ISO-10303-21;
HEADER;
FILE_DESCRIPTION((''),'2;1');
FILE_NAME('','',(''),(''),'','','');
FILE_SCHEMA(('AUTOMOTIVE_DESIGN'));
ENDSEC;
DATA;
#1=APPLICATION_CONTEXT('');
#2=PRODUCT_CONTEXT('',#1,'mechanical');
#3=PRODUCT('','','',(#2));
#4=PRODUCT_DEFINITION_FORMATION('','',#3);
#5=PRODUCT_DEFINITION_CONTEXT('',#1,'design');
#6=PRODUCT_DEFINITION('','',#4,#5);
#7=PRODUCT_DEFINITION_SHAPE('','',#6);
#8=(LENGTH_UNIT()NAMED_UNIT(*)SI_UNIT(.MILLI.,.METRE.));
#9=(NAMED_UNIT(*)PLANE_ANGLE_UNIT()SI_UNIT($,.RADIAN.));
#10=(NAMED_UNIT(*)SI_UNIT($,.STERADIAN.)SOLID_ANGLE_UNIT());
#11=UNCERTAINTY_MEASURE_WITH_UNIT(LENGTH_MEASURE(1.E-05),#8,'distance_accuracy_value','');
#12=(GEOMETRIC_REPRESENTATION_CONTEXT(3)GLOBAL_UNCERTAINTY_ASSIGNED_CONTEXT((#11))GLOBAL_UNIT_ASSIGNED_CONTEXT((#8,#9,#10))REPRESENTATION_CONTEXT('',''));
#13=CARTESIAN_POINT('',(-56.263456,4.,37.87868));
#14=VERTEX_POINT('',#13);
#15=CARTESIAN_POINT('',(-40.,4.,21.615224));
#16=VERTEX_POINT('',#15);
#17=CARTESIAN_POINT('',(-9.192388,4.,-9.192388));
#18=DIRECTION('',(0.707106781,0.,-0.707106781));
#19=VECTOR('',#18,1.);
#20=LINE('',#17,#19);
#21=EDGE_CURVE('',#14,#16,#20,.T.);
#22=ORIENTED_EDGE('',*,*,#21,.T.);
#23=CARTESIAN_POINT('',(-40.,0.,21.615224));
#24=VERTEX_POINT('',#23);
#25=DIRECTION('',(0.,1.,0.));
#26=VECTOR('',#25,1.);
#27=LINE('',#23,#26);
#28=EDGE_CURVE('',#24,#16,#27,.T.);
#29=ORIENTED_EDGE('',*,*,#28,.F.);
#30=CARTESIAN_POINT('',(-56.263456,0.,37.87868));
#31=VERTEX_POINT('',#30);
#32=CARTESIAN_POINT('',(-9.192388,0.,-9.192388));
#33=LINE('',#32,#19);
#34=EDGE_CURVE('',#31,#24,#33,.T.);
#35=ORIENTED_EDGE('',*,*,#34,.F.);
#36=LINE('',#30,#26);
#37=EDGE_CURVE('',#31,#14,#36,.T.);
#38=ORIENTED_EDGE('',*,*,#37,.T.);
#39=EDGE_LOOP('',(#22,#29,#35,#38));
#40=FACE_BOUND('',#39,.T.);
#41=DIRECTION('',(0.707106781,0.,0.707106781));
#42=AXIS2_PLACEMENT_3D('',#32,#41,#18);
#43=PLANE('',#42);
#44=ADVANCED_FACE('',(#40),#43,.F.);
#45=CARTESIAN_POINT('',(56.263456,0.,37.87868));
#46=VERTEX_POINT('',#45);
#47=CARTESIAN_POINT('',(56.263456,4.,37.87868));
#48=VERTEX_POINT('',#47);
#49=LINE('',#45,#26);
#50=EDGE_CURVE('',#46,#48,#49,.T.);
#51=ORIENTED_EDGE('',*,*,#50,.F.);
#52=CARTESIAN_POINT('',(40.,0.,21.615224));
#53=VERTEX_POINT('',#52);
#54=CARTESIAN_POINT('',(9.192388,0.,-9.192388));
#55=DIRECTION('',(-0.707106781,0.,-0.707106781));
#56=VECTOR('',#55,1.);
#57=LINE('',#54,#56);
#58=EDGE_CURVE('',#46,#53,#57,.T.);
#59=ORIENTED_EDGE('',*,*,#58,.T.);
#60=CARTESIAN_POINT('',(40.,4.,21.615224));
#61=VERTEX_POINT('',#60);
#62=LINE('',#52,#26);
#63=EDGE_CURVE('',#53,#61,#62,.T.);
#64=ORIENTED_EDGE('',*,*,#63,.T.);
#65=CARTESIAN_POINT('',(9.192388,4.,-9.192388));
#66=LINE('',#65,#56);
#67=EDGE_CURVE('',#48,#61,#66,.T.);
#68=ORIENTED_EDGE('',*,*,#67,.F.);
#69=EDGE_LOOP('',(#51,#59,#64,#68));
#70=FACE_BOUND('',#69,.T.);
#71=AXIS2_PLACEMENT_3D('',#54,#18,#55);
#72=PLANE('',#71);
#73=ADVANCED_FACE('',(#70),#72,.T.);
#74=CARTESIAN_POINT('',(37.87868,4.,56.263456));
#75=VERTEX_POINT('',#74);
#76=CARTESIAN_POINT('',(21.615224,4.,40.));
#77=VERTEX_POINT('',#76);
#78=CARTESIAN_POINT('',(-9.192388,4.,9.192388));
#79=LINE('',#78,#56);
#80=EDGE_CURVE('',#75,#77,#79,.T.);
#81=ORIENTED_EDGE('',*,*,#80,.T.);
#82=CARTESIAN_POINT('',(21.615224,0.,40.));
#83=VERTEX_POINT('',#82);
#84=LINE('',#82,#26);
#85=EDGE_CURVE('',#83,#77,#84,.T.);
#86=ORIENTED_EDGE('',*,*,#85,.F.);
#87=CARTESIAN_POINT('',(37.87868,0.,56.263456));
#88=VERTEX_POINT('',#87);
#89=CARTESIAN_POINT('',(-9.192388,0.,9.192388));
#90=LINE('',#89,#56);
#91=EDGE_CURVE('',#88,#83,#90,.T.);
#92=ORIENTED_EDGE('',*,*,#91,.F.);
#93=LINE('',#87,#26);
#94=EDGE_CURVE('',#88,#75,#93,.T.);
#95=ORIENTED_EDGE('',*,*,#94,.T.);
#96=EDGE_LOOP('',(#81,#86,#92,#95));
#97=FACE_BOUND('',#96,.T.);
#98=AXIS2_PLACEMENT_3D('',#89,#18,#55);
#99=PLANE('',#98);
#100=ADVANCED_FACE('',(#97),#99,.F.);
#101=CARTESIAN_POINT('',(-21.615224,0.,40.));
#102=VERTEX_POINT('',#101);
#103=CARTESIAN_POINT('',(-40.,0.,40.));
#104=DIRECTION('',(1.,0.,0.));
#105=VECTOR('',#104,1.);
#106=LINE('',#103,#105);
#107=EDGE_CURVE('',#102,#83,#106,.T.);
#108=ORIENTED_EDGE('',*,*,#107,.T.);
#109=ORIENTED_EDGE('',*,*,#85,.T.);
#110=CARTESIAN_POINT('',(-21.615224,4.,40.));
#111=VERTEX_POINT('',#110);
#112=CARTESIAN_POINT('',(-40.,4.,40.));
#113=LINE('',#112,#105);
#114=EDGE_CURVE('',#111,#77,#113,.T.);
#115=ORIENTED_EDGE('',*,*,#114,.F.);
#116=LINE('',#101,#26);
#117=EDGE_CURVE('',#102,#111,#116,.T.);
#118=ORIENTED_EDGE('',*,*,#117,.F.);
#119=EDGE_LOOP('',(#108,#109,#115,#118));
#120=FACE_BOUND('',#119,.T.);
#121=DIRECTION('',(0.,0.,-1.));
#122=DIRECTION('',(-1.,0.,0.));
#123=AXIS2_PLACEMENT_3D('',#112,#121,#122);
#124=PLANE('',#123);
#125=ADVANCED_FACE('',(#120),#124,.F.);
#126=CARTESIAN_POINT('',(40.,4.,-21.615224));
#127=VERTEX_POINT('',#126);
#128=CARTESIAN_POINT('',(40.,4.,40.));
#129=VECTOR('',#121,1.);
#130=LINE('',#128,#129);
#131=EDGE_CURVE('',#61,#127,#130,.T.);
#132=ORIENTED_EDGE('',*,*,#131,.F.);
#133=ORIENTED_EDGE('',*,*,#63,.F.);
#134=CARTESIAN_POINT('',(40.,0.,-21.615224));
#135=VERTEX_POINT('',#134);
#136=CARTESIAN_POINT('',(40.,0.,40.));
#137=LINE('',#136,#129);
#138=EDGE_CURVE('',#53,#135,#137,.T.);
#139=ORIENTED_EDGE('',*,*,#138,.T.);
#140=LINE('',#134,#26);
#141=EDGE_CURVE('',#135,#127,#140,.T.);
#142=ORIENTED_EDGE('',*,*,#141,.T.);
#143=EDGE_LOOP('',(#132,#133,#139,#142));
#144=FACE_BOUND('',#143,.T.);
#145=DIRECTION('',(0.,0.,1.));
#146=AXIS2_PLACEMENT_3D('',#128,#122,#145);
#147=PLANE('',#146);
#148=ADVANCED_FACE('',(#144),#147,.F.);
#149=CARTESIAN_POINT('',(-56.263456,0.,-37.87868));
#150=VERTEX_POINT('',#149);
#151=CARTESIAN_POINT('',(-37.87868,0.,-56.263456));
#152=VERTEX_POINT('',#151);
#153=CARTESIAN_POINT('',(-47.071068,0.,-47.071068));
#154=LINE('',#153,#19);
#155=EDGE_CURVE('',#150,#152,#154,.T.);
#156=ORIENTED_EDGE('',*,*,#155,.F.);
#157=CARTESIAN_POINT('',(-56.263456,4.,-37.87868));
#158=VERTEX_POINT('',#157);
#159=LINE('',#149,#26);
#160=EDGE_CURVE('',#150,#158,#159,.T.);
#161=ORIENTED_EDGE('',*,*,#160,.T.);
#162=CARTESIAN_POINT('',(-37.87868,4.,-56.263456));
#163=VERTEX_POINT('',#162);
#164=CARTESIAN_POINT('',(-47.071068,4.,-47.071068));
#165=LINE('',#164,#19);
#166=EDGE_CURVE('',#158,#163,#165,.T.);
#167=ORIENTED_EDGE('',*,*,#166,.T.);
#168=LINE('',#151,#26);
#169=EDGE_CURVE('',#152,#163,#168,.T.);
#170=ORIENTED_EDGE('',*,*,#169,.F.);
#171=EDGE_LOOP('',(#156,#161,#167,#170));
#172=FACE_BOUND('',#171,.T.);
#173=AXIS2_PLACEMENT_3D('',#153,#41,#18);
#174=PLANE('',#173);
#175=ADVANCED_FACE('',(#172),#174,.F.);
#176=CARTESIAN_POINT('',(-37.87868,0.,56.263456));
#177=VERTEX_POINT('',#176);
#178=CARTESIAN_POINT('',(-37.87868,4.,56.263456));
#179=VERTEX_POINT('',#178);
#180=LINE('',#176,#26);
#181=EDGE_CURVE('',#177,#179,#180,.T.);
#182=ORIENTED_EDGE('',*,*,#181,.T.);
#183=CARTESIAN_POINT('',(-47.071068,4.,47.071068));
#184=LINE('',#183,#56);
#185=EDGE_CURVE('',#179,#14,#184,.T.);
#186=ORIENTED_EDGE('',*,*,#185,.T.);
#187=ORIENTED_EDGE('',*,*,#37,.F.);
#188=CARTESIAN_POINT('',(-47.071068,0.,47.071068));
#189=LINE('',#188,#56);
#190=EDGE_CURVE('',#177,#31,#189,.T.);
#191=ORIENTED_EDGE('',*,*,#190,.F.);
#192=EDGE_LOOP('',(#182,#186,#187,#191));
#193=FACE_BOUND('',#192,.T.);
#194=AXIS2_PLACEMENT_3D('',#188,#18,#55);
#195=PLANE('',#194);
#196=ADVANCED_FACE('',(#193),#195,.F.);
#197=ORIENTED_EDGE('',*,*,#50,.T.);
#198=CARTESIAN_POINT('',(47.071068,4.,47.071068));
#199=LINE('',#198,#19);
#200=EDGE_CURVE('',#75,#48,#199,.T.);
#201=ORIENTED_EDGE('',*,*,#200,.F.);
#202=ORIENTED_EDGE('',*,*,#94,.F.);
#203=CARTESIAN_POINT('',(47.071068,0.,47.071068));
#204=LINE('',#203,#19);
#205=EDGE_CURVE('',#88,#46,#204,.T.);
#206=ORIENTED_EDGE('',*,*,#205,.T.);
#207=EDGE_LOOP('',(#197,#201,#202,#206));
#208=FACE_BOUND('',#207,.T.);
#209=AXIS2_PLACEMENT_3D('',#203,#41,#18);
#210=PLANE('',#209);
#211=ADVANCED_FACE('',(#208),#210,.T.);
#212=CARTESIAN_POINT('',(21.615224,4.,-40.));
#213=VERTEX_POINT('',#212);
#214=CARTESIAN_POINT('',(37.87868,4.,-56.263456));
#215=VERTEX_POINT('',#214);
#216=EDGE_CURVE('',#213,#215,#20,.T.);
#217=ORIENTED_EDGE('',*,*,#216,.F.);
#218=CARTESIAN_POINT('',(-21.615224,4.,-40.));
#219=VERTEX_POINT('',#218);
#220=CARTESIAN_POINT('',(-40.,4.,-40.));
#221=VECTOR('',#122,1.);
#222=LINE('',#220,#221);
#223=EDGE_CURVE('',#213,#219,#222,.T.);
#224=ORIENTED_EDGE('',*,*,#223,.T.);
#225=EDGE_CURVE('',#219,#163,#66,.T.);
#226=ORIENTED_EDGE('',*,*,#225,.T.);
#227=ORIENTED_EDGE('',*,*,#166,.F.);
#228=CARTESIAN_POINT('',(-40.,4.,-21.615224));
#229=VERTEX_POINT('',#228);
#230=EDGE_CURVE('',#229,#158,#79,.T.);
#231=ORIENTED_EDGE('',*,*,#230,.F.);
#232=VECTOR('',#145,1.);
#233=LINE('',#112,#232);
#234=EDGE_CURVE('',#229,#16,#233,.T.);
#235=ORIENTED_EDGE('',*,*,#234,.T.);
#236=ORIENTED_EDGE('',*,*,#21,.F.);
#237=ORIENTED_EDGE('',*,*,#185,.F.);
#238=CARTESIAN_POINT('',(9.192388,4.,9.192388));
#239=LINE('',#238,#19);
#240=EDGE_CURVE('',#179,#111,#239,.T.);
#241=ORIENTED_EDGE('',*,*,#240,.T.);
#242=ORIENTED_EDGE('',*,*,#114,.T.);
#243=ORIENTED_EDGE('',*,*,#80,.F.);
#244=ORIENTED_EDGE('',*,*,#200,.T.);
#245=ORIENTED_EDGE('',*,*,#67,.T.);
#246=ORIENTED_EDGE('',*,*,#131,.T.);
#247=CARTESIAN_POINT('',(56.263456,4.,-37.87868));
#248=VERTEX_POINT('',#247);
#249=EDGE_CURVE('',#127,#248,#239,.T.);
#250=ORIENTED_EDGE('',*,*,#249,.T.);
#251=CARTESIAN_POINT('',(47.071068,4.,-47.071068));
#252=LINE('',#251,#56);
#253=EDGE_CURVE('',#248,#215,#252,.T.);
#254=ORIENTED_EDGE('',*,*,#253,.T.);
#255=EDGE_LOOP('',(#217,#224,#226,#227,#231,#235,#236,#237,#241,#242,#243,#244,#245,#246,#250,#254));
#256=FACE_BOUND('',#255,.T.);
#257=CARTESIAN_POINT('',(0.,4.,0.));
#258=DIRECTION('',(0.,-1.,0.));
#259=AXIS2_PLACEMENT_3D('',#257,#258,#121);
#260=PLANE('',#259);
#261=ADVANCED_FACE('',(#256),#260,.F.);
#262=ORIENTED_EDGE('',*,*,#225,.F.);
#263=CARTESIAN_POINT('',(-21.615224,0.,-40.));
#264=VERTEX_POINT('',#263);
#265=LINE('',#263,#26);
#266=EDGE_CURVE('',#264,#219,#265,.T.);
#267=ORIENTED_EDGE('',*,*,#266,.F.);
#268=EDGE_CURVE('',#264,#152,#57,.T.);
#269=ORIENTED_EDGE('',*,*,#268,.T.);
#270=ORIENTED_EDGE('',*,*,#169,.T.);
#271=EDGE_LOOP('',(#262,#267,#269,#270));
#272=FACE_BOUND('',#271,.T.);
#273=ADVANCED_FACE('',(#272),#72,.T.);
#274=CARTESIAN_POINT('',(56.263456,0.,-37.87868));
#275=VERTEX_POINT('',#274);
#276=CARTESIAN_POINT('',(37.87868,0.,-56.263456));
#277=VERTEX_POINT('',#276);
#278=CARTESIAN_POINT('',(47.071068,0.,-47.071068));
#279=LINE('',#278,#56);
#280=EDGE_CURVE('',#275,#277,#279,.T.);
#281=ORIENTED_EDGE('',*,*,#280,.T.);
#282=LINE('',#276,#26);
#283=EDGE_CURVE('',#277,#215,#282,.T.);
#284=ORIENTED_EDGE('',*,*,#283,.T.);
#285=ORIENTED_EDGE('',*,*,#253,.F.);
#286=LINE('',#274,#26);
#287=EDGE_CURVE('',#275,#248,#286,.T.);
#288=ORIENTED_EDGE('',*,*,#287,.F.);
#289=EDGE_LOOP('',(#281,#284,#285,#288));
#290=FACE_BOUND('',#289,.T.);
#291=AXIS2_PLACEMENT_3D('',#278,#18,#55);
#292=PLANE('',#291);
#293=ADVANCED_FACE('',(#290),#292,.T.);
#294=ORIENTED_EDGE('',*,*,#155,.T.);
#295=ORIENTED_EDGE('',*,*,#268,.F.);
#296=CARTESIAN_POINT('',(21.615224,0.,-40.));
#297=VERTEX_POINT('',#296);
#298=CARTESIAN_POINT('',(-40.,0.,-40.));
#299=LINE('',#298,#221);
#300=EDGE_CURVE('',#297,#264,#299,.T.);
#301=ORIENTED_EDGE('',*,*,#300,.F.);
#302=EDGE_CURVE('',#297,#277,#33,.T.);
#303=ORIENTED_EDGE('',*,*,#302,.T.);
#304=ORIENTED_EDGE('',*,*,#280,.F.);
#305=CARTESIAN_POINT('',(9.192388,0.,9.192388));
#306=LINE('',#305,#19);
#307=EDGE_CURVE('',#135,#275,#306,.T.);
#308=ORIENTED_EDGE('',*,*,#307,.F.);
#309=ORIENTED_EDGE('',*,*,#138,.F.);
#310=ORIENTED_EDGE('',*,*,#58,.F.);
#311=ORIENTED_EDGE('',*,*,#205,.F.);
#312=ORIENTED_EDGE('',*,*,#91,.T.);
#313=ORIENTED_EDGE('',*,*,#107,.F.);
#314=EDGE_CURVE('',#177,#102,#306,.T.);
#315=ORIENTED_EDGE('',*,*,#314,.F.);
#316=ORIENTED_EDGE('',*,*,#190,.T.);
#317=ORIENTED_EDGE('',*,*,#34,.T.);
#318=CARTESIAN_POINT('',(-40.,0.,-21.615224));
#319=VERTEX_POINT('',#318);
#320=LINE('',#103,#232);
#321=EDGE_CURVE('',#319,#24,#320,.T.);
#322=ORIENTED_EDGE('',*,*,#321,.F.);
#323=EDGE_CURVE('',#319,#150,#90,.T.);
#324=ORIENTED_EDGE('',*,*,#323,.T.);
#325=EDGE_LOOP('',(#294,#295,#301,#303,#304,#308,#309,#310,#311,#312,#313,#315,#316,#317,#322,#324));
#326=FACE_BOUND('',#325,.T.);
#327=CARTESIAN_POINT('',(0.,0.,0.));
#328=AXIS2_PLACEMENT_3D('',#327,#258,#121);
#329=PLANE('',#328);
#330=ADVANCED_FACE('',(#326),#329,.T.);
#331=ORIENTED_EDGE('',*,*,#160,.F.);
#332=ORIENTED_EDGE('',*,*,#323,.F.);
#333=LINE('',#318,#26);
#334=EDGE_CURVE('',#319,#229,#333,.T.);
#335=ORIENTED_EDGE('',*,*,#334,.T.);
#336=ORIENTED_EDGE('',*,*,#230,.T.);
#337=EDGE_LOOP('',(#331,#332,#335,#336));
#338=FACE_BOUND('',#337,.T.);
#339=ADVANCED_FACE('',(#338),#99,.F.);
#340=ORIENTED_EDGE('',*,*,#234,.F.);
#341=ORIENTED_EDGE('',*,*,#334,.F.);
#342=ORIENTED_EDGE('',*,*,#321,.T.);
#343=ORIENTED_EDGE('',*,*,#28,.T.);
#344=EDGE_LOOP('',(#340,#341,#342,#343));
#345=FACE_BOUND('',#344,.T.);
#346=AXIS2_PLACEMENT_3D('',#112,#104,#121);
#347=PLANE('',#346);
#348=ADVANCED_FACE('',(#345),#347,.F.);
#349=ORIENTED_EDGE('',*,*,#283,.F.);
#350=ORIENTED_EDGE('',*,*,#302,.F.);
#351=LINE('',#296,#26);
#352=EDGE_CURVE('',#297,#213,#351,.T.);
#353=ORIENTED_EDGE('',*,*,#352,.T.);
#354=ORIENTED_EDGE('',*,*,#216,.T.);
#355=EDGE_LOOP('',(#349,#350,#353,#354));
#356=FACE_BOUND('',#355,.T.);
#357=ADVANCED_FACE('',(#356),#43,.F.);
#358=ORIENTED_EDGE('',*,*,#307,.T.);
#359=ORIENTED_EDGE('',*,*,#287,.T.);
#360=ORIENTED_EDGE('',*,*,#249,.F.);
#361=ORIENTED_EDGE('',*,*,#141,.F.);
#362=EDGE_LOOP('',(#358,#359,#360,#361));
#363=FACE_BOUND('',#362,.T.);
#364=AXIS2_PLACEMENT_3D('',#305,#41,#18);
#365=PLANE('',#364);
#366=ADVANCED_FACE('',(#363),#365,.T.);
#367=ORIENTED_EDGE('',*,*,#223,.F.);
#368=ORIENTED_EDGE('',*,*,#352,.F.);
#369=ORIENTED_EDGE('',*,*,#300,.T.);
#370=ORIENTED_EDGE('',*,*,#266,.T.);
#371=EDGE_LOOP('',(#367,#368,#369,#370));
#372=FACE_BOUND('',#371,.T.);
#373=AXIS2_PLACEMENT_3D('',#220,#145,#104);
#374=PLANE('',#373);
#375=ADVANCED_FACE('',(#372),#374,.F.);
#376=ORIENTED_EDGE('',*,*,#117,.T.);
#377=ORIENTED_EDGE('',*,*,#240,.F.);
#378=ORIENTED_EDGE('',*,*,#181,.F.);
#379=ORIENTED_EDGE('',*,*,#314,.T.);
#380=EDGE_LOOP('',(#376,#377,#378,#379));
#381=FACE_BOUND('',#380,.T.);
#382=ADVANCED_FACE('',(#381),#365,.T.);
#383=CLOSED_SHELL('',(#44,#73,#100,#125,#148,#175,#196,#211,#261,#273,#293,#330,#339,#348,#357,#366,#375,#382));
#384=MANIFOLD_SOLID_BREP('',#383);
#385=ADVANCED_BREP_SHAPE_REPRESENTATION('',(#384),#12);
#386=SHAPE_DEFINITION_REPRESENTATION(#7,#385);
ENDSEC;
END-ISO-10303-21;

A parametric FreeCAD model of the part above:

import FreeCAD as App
import Part
import Sketcher


def add_polygon(sketch, points):
    """Adds a closed chain of lines whose ends are joined by coincident constraints."""
    first, n = sketch.GeometryCount, len(points)
    for a, b in zip(points, points[1:] + points[:1]):
        sketch.addGeometry(Part.LineSegment(App.Vector(*a, 0), App.Vector(*b, 0)), False)
    for i in range(n):
        sketch.addConstraint(Sketcher.Constraint("Coincident", first + i, 2, first + (i + 1) % n, 1))

doc = App.newDocument("Part")
body = doc.addObject("PartDesign::Body", "Body")

# Sketch on XZ plane
sketch1 = body.newObject("Sketcher::SketchObject", "Sketch")
sketch1.AttachmentSupport = (doc.getObject("XZ_Plane"), [""])
sketch1.MapMode = "FlatFace"
add_polygon(sketch1, [(-40, -40), (-40, 40), (40, 40), (40, -40)])  # lines 0-3
sketch1.addConstraint([
    Sketcher.Constraint("Vertical", 0),
    Sketcher.Constraint("Horizontal", 1),
    Sketcher.Constraint("Vertical", 2),
    Sketcher.Constraint("Horizontal", 3),
    Sketcher.Constraint("Symmetric", 0, 2, 2, 2, -1, 1),
    Sketcher.Constraint("Equal", 3, 0),
    Sketcher.Constraint("DistanceX", 1, 1, 1, 2, 80.0),
])
pad1 = body.newObject("PartDesign::Pad", "Pad")
pad1.Profile = sketch1
pad1.Length = 4
pad1.Reversed = True

# Sketch on XZ plane
sketch2 = body.newObject("Sketcher::SketchObject", "Sketch001")
sketch2.AttachmentSupport = (doc.getObject("XZ_Plane"), [""])
sketch2.MapMode = "FlatFace"
sketch2.AttachmentOffset = App.Placement(App.Vector(0, 0, -4), App.Rotation())
add_polygon(sketch2, [(-56.263456, -37.87868), (-40, -21.615224), (-40, -40), (-21.615224, -40), (-37.87868, -56.263456)])  # lines 0-4
add_polygon(sketch2, [(-37.87868, 56.263456), (-21.615224, 40), (-40, 40), (-40, 21.615224), (-56.263456, 37.87868)])  # lines 5-9
add_polygon(sketch2, [(40, -40), (40, -21.615224), (56.263456, -37.87868), (37.87868, -56.263456), (21.615224, -40)])  # lines 10-14
add_polygon(sketch2, [(21.615224, 40), (37.87868, 56.263456), (56.263456, 37.87868), (40, 21.615224), (40, 40)])  # lines 15-19
sketch2.addConstraint([
    Sketcher.Constraint("Vertical", 1),
    Sketcher.Constraint("Horizontal", 2),
    Sketcher.Constraint("Horizontal", 6),
    Sketcher.Constraint("Vertical", 7),
    Sketcher.Constraint("Vertical", 10),
    Sketcher.Constraint("Horizontal", 14),
    Sketcher.Constraint("Vertical", 18),
    Sketcher.Constraint("Horizontal", 19),
    Sketcher.Constraint("Symmetric", 7, 2, 10, 2, -1, 1),
    Sketcher.Constraint("Symmetric", 8, 2, 11, 2, -1, 1),
    Sketcher.Constraint("Symmetric", 9, 2, 12, 2, -1, 1),
    Sketcher.Constraint("Symmetric", 5, 2, 13, 2, -1, 1),
    Sketcher.Constraint("Symmetric", 3, 2, 15, 2, -1, 1),
    Sketcher.Constraint("Symmetric", 4, 2, 16, 2, -1, 1),
    Sketcher.Constraint("Symmetric", 0, 2, 17, 2, -1, 1),
    Sketcher.Constraint("Symmetric", 2, 2, 19, 2, -1, 1),
    Sketcher.Constraint("Symmetric", 0, 2, 10, 2, -2),
    Sketcher.Constraint("Symmetric", 4, 2, 11, 2, -2),
    Sketcher.Constraint("Symmetric", 3, 2, 12, 2, -2),
    Sketcher.Constraint("Symmetric", 2, 2, 13, 2, -2),
    Sketcher.Constraint("Parallel", 0, 3),
    Sketcher.Constraint("Perpendicular", 3, 4),
    Sketcher.Constraint("Parallel", 4, 5),
    Sketcher.Constraint("Equal", 19, 1),
    Sketcher.Constraint("Distance", 0, 23.0),
    Sketcher.Constraint("Distance", 4, 26.0),
    Sketcher.Constraint("DistanceX", 0, 2, -1, 1, 40.0),
    Sketcher.Constraint("DistanceY", 1, 2, -1, 1, 40.0),
])
pad2 = body.newObject("PartDesign::Pad", "Pad001")
pad2.Profile = sketch2
pad2.Length = 4

doc.recompute()
